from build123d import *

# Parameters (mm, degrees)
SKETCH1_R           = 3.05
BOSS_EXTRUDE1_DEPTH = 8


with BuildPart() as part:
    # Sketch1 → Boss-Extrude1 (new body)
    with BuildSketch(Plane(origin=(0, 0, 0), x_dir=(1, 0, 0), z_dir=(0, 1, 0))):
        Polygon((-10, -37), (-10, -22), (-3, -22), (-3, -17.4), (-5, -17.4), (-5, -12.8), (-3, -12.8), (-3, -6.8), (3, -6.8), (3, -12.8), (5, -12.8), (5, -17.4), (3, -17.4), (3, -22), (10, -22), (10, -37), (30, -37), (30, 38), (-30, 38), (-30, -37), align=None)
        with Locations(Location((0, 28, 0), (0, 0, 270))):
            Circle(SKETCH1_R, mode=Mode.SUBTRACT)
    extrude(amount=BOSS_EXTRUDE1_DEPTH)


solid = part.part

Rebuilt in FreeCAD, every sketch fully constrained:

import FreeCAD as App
import Part
import Sketcher

V = App.Vector

doc = App.newDocument("Part")
body = doc.addObject("PartDesign::Body", "Body")

# Sketch on XZ plane
sketch1 = body.newObject("Sketcher::SketchObject", "Sketch")
sketch1.AttachmentSupport = (doc.getObject("XZ_Plane"), [""])
sketch1.MapMode = "FlatFace"
sketch1.addGeometry([
    Part.LineSegment(V(-10, 37, 0), V(-10, 22, 0)),  # 0
    Part.LineSegment(V(-10, 22, 0), V(-3, 22, 0)),  # 1
    Part.LineSegment(V(-3, 22, 0), V(-3, 17.4, 0)),  # 2
    Part.LineSegment(V(-3, 17.4, 0), V(-5, 17.4, 0)),  # 3
    Part.LineSegment(V(-5, 17.4, 0), V(-5, 12.8, 0)),  # 4
    Part.LineSegment(V(-5, 12.8, 0), V(-3, 12.8, 0)),  # 5
    Part.LineSegment(V(-3, 12.8, 0), V(-3, 6.8, 0)),  # 6
    Part.LineSegment(V(-3, 6.8, 0), V(3, 6.8, 0)),  # 7
    Part.LineSegment(V(3, 6.8, 0), V(3, 12.8, 0)),  # 8
    Part.LineSegment(V(3, 12.8, 0), V(5, 12.8, 0)),  # 9
    Part.LineSegment(V(5, 12.8, 0), V(5, 17.4, 0)),  # 10
    Part.LineSegment(V(5, 17.4, 0), V(3, 17.4, 0)),  # 11
    Part.LineSegment(V(3, 17.4, 0), V(3, 22, 0)),  # 12
    Part.LineSegment(V(3, 22, 0), V(10, 22, 0)),  # 13
    Part.LineSegment(V(10, 22, 0), V(10, 37, 0)),  # 14
    Part.LineSegment(V(10, 37, 0), V(30, 37, 0)),  # 15
    Part.LineSegment(V(30, 37, 0), V(30, -38, 0)),  # 16
    Part.LineSegment(V(30, -38, 0), V(-30, -38, 0)),  # 17
    Part.LineSegment(V(-30, -38, 0), V(-30, 37, 0)),  # 18
    Part.LineSegment(V(-30, 37, 0), V(-10, 37, 0)),  # 19
    Part.Circle(V(0, -28, 0), V(0, 0, 1), 3),  # 20
], False)
sketch1.addConstraint([
    Sketcher.Constraint("Coincident", 0, 2, 1, 1),
    Sketcher.Constraint("Coincident", 1, 2, 2, 1),
    Sketcher.Constraint("Coincident", 2, 2, 3, 1),
    Sketcher.Constraint("Coincident", 3, 2, 4, 1),
    Sketcher.Constraint("Coincident", 4, 2, 5, 1),
    Sketcher.Constraint("Coincident", 5, 2, 6, 1),
    Sketcher.Constraint("Coincident", 6, 2, 7, 1),
    Sketcher.Constraint("Coincident", 7, 2, 8, 1),
    Sketcher.Constraint("Coincident", 8, 2, 9, 1),
    Sketcher.Constraint("Coincident", 9, 2, 10, 1),
    Sketcher.Constraint("Coincident", 10, 2, 11, 1),
    Sketcher.Constraint("Coincident", 11, 2, 12, 1),
    Sketcher.Constraint("Coincident", 12, 2, 13, 1),
    Sketcher.Constraint("Coincident", 13, 2, 14, 1),
    Sketcher.Constraint("Coincident", 14, 2, 15, 1),
    Sketcher.Constraint("Coincident", 15, 2, 16, 1),
    Sketcher.Constraint("Coincident", 16, 2, 17, 1),
    Sketcher.Constraint("Coincident", 17, 2, 18, 1),
    Sketcher.Constraint("Coincident", 18, 2, 19, 1),
    Sketcher.Constraint("Coincident", 19, 2, 0, 1),
    Sketcher.Constraint("Vertical", 0),
    Sketcher.Constraint("Horizontal", 1),
    Sketcher.Constraint("Vertical", 2),
    Sketcher.Constraint("Horizontal", 3),
    Sketcher.Constraint("Vertical", 4),
    Sketcher.Constraint("Horizontal", 5),
    Sketcher.Constraint("Vertical", 6),
    Sketcher.Constraint("Horizontal", 7),
    Sketcher.Constraint("Vertical", 8),
    Sketcher.Constraint("Horizontal", 9),
    Sketcher.Constraint("Vertical", 10),
    Sketcher.Constraint("Horizontal", 11),
    Sketcher.Constraint("Vertical", 12),
    Sketcher.Constraint("Horizontal", 13),
    Sketcher.Constraint("Vertical", 14),
    Sketcher.Constraint("Horizontal", 15),
    Sketcher.Constraint("Vertical", 16),
    Sketcher.Constraint("Horizontal", 17),
    Sketcher.Constraint("Vertical", 18),
    Sketcher.Constraint("Horizontal", 19),
    Sketcher.Constraint("Symmetric", 5, 2, 8, 2, -2),
    Sketcher.Constraint("Symmetric", 3, 2, 10, 2, -2),
    Sketcher.Constraint("Symmetric", 1, 2, 12, 2, -2),
    Sketcher.Constraint("Symmetric", 15, 2, 18, 2, -2),
    Sketcher.Constraint("PointOnObject", 20, 3, -2),
    Sketcher.Constraint("Vertical", 2, 2, 5, 2),
    Sketcher.Constraint("Equal", 1, 13),
    Sketcher.Constraint("Equal", 2, 4),
    Sketcher.Constraint("Equal", 7, 6),
    Sketcher.Constraint("Diameter", 20, 6.1),
    Sketcher.Constraint("DistanceX", 1, 1, 1, 2, 7.0),
    Sketcher.Constraint("DistanceX", 3, 2, 3, 1, 2.0),
    Sketcher.Constraint("DistanceX", 7, 1, 7, 2, 6.0),
    Sketcher.Constraint("DistanceX", 15, 1, 15, 2, 20.0),
    Sketcher.Constraint("DistanceY", 0, 2, 0, 1, 15.0),
    Sketcher.Constraint("DistanceY", 16, 2, 16, 1, 75.0),
    Sketcher.Constraint("DistanceY", 2, 2, 2, 1, 4.6),
    Sketcher.Constraint("DistanceY", 20, 3, -1, 1, 28.0),
    Sketcher.Constraint("DistanceY", -1, 1, 0, 2, 22.0),
])
pad1 = body.newObject("PartDesign::Pad", "Pad")
pad1.Profile = sketch1
pad1.Length = 8
pad1.Reversed = True

doc.recompute()
